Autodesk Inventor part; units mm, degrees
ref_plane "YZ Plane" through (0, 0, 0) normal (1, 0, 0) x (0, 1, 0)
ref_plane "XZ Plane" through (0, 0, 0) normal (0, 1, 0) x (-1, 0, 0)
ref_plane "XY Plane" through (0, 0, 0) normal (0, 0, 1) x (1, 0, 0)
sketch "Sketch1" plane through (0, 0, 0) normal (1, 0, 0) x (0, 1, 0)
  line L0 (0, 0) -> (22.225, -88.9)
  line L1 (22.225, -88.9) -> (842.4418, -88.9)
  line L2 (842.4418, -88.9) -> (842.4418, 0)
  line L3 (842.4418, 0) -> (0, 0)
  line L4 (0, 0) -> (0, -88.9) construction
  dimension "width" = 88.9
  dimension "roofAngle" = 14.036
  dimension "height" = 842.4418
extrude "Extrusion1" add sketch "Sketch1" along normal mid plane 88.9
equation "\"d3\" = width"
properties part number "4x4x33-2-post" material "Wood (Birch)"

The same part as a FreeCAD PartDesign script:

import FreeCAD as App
import Part
import Sketcher
Q = App.Units.Quantity

doc = App.newDocument("Part")
body = doc.addObject("PartDesign::Body", "Body")

sketch1 = body.newObject("Sketcher::SketchObject", "Sketch")
sketch1.AttachmentSupport = (doc.getObject("YZ_Plane"), [""])
sketch1.MapMode = "FlatFace"
sketch1.addGeometry([
    Part.LineSegment(App.Vector(842, 0, 0), App.Vector(0, 0, 0)),
    Part.LineSegment(App.Vector(0, 0, 0), App.Vector(22, -89, 0)),
    Part.LineSegment(App.Vector(22, -89, 0), App.Vector(842, -89, 0)),
    Part.LineSegment(App.Vector(842, -89, 0), App.Vector(842, 0, 0)),
], False)
sketch1.addConstraint([
    Sketcher.Constraint("Coincident", 0, 2, 1, 1),
    Sketcher.Constraint("Coincident", 1, 2, 2, 1),
    Sketcher.Constraint("Coincident", 2, 2, 3, 1),
    Sketcher.Constraint("Coincident", 3, 2, 0, 1),
    Sketcher.Constraint("Horizontal", 0),
    Sketcher.Constraint("Horizontal", 2),
    Sketcher.Constraint("Vertical", 3),
    Sketcher.Constraint("Coincident", 0, 2, -1, 1),
    Sketcher.Constraint("DistanceY", 3, 1, 3, 2, Q("3.5 in")),
    Sketcher.Constraint("DistanceX", 0, 2, 0, 1, Q("33.167 in")),
    Sketcher.Constraint("DistanceX", 2, 1, 2, 2, Q("32.292 in")),
])
pad1 = body.newObject("PartDesign::Pad", "Pad")
pad1.Profile = sketch1
pad1.Length = Q("3.5 in")
pad1.Midplane = True

doc.recompute()
